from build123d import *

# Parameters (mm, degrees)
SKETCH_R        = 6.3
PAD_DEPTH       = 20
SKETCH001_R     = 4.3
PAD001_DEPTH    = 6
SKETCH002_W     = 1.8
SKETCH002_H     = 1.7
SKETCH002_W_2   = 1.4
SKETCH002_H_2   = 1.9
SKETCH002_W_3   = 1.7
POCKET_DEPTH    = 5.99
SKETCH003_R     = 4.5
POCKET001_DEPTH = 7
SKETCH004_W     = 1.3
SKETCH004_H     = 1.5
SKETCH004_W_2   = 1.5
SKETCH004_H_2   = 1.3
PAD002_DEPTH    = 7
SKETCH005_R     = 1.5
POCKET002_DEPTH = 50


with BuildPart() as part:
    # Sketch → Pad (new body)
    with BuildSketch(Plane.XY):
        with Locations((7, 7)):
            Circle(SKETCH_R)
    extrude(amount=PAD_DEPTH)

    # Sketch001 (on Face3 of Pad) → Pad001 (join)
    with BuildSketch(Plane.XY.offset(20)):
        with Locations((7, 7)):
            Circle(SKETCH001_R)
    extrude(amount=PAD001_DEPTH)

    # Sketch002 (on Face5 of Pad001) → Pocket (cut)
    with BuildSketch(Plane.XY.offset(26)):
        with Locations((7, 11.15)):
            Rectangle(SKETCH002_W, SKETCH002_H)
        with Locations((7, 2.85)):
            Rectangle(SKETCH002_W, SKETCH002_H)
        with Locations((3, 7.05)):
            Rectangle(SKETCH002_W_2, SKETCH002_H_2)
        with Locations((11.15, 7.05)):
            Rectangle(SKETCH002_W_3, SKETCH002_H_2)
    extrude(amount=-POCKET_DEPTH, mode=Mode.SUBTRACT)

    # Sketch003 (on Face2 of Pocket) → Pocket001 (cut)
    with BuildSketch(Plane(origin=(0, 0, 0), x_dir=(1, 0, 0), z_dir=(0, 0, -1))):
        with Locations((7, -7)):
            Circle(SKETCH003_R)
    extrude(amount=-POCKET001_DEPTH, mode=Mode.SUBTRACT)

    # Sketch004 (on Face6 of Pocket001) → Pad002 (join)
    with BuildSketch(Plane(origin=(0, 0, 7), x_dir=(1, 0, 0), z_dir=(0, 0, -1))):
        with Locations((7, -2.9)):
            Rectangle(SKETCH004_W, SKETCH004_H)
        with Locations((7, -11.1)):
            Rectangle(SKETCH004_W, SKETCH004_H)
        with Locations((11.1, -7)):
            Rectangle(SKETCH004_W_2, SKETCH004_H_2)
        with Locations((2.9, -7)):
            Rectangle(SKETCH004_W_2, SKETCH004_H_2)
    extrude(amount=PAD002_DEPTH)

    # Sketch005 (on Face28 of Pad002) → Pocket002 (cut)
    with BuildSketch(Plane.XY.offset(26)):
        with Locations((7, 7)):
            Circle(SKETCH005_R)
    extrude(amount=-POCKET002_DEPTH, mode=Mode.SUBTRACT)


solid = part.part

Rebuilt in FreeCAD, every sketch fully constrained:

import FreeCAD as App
import Part
import Sketcher

V = App.Vector
Q = App.Units.Quantity


def add_polygon(sketch, points):
    """Adds a closed chain of lines whose ends are joined by coincident constraints."""
    first, n = sketch.GeometryCount, len(points)
    for a, b in zip(points, points[1:] + points[:1]):
        sketch.addGeometry(Part.LineSegment(App.Vector(*a, 0), App.Vector(*b, 0)), False)
    for i in range(n):
        sketch.addConstraint(Sketcher.Constraint("Coincident", first + i, 2, first + (i + 1) % n, 1))

doc = App.newDocument("Part")
body = doc.addObject("PartDesign::Body", "Body")

sketch1 = body.newObject("Sketcher::SketchObject", "Sketch")
sketch1.AttachmentSupport = (doc.getObject("XY_Plane"), [""])
sketch1.MapMode = "FlatFace"
sketch1.addGeometry(Part.Circle(V(7, 7, 0), V(0, 0, 1), 6), False)
sketch1.addConstraint(Sketcher.Constraint("Diameter", 0, Q("12.6 mm")))
sketch1.addConstraint(Sketcher.Constraint("DistanceX", -1, 1, 0, 3, Q("7 mm")))
sketch1.addConstraint(Sketcher.Constraint("DistanceY", -1, 1, 0, 3, Q("7 mm")))
pad1 = body.newObject("PartDesign::Pad", "Pad")
pad1.Profile = sketch1
pad1.Length = 20

sketch2 = body.newObject("Sketcher::SketchObject", "Sketch001")
sketch2.AttachmentSupport = (doc.getObject("XY_Plane"), [""])
sketch2.MapMode = "FlatFace"
sketch2.AttachmentOffset = App.Placement(V(0, 0, 20), App.Rotation())
sketch2.addGeometry(Part.Circle(V(7, 7, 0), V(0, 0, 1), 4.3), False)
sketch2.addConstraint(Sketcher.Constraint("Diameter", 0, Q("8.6 mm")))
sketch2.addConstraint(Sketcher.Constraint("DistanceX", -1, 1, 0, 3, Q("7 mm")))
sketch2.addConstraint(Sketcher.Constraint("DistanceY", -1, 1, 0, 3, Q("7 mm")))
pad2 = body.newObject("PartDesign::Pad", "Pad001")
pad2.Profile = sketch2
pad2.Length = 6

sketch3 = body.newObject("Sketcher::SketchObject", "Sketch002")
sketch3.AttachmentSupport = (doc.getObject("XY_Plane"), [""])
sketch3.MapMode = "FlatFace"
sketch3.AttachmentOffset = App.Placement(V(0, 0, 26), App.Rotation())
add_polygon(sketch3, [(6.1, 12), (6.1, 10.3), (7.9, 10.3), (7.9, 12)])
add_polygon(sketch3, [(6.1, 3.7), (6.1, 2), (7.9, 2), (7.9, 3.7)])
add_polygon(sketch3, [(2.3, 8), (2.3, 6.1), (3.7, 6.1), (3.7, 8)])
add_polygon(sketch3, [(10.3, 8), (10.3, 6.1), (12, 6.1), (12, 8)])
sketch3.addConstraint(Sketcher.Constraint("Vertical", 0))
sketch3.addConstraint(Sketcher.Constraint("Horizontal", 1))
sketch3.addConstraint(Sketcher.Constraint("Vertical", 2))
sketch3.addConstraint(Sketcher.Constraint("Horizontal", 3))
sketch3.addConstraint(Sketcher.Constraint("Vertical", 4))
sketch3.addConstraint(Sketcher.Constraint("Horizontal", 5))
sketch3.addConstraint(Sketcher.Constraint("Vertical", 6))
sketch3.addConstraint(Sketcher.Constraint("Horizontal", 7))
sketch3.addConstraint(Sketcher.Constraint("Vertical", 8))
sketch3.addConstraint(Sketcher.Constraint("Horizontal", 9))
sketch3.addConstraint(Sketcher.Constraint("Vertical", 10))
sketch3.addConstraint(Sketcher.Constraint("Horizontal", 11))
sketch3.addConstraint(Sketcher.Constraint("Vertical", 12))
sketch3.addConstraint(Sketcher.Constraint("Horizontal", 13))
sketch3.addConstraint(Sketcher.Constraint("Vertical", 14))
sketch3.addConstraint(Sketcher.Constraint("Horizontal", 15))
sketch3.addConstraint(Sketcher.Constraint("Horizontal", 9, 2, 12, 2))
sketch3.addConstraint(Sketcher.Constraint("Horizontal", 11, 2, 14, 2))
sketch3.addConstraint(Sketcher.Constraint("Vertical", 3, 2, 4, 2))
sketch3.addConstraint(Sketcher.Constraint("Vertical", 2, 2, 5, 2))
sketch3.addConstraint(Sketcher.Constraint("Equal", 15, 0))
sketch3.addConstraint(Sketcher.Constraint("Equal", 2, 4))
sketch3.addConstraint(Sketcher.Constraint("DistanceX", 1, 1, 1, 2, Q("1.8 mm")))
sketch3.addConstraint(Sketcher.Constraint("DistanceX", 9, 1, 9, 2, Q("1.4 mm")))
sketch3.addConstraint(Sketcher.Constraint("DistanceX", 13, 1, 13, 2, Q("1.7 mm")))
sketch3.addConstraint(Sketcher.Constraint("DistanceY", 8, 2, 8, 1, Q("1.9 mm")))
sketch3.addConstraint(Sketcher.Constraint("DistanceY", -1, 1, 2, 2, Q("12 mm")))
sketch3.addConstraint(Sketcher.Constraint("DistanceY", -1, 1, 4, 2, Q("2 mm")))
sketch3.addConstraint(Sketcher.Constraint("DistanceY", -1, 1, 10, 2, Q("8 mm")))
sketch3.addConstraint(Sketcher.Constraint("DistanceX", -1, 1, 13, 2, Q("12 mm")))
sketch3.addConstraint(Sketcher.Constraint("DistanceX", -1, 1, 0, 2, Q("6.1 mm")))
sketch3.addConstraint(Sketcher.Constraint("DistanceX", -1, 1, 8, 2, Q("2.3 mm")))
pocket1 = body.newObject("PartDesign::Pocket", "Pocket")
pocket1.Profile = sketch3
pocket1.Length = 5.99

sketch4 = body.newObject("Sketcher::SketchObject", "Sketch003")
sketch4.AttachmentSupport = (doc.getObject("XY_Plane"), [""])
sketch4.MapMode = "FlatFace"
sketch4.addGeometry(Part.Circle(V(7, 7, 0), V(0, 0, 1), 4.5), False)
sketch4.addConstraint(Sketcher.Constraint("Diameter", 0, Q("9 mm")))
sketch4.addConstraint(Sketcher.Constraint("DistanceX", -1, 1, 0, 3, Q("7 mm")))
sketch4.addConstraint(Sketcher.Constraint("DistanceY", -1, 1, 0, 3, Q("7 mm")))
pocket2 = body.newObject("PartDesign::Pocket", "Pocket001")
pocket2.Profile = sketch4
pocket2.Length = 7
pocket2.Reversed = True

sketch5 = body.newObject("Sketcher::SketchObject", "Sketch004")
sketch5.AttachmentSupport = (doc.getObject("XY_Plane"), [""])
sketch5.MapMode = "FlatFace"
sketch5.AttachmentOffset = App.Placement(V(0, 0, 7), App.Rotation())
add_polygon(sketch5, [(6.3, 2.1), (6.3, 3.6), (7.7, 3.6), (7.7, 2.1)])
add_polygon(sketch5, [(6.3, 10.3), (6.3, 11.8), (7.7, 11.8), (7.7, 10.3)])
add_polygon(sketch5, [(10.3, 6.3), (10.3, 7.7), (11.8, 7.7), (11.8, 6.3)])
add_polygon(sketch5, [(2.1, 6.3), (2.1, 7.7), (3.6, 7.7), (3.6, 6.3)])
sketch5.addConstraint(Sketcher.Constraint("Vertical", 0))
sketch5.addConstraint(Sketcher.Constraint("Horizontal", 1))
sketch5.addConstraint(Sketcher.Constraint("Vertical", 2))
sketch5.addConstraint(Sketcher.Constraint("Horizontal", 3))
sketch5.addConstraint(Sketcher.Constraint("Vertical", 4))
sketch5.addConstraint(Sketcher.Constraint("Horizontal", 5))
sketch5.addConstraint(Sketcher.Constraint("Vertical", 6))
sketch5.addConstraint(Sketcher.Constraint("Horizontal", 7))
sketch5.addConstraint(Sketcher.Constraint("Vertical", 8))
sketch5.addConstraint(Sketcher.Constraint("Horizontal", 9))
sketch5.addConstraint(Sketcher.Constraint("Vertical", 10))
sketch5.addConstraint(Sketcher.Constraint("Horizontal", 11))
sketch5.addConstraint(Sketcher.Constraint("Vertical", 12))
sketch5.addConstraint(Sketcher.Constraint("Horizontal", 13))
sketch5.addConstraint(Sketcher.Constraint("Vertical", 14))
sketch5.addConstraint(Sketcher.Constraint("Horizontal", 15))
sketch5.addConstraint(Sketcher.Constraint("Horizontal", 9, 2, 12, 2))
sketch5.addConstraint(Sketcher.Constraint("Horizontal", 11, 2, 14, 2))
sketch5.addConstraint(Sketcher.Constraint("Vertical", 3, 2, 4, 2))
sketch5.addConstraint(Sketcher.Constraint("Vertical", 2, 2, 5, 2))
sketch5.addConstraint(Sketcher.Constraint("Equal", 11, 13))
sketch5.addConstraint(Sketcher.Constraint("Equal", 15, 0))
sketch5.addConstraint(Sketcher.Constraint("Equal", 2, 4))
sketch5.addConstraint(Sketcher.Constraint("Equal", 7, 8))
sketch5.addConstraint(Sketcher.Constraint("DistanceX", 1, 1, 1, 2, Q("1.3 mm")))
sketch5.addConstraint(Sketcher.Constraint("DistanceX", 9, 1, 9, 2, Q("1.5 mm")))
sketch5.addConstraint(Sketcher.Constraint("DistanceY", 1, 2, 8, 2, Q("4 mm")))
sketch5.addConstraint(Sketcher.Constraint("DistanceX", 7, 2, 8, 2, Q("4 mm")))
sketch5.addConstraint(Sketcher.Constraint("DistanceY", 10, 2, 6, 2, Q("4 mm")))
sketch5.addConstraint(Sketcher.Constraint("DistanceX", 13, 2, 6, 2, Q("4 mm")))
sketch5.addConstraint(Sketcher.Constraint("DistanceX", -1, 1, 0, 2, Q("6.35 mm")))
sketch5.addConstraint(Sketcher.Constraint("DistanceY", -1, 1, 0, 2, Q("3.65 mm")))
pad3 = body.newObject("PartDesign::Pad", "Pad002")
pad3.Profile = sketch5
pad3.Length = 7
pad3.Reversed = True

sketch6 = body.newObject("Sketcher::SketchObject", "Sketch005")
sketch6.AttachmentSupport = (doc.getObject("XY_Plane"), [""])
sketch6.MapMode = "FlatFace"
sketch6.AttachmentOffset = App.Placement(V(0, 0, 26), App.Rotation())
sketch6.addGeometry(Part.Circle(V(7, 7, 0), V(0, 0, 1), 1.5), False)
sketch6.addConstraint(Sketcher.Constraint("Diameter", 0, Q("3 mm")))
sketch6.addConstraint(Sketcher.Constraint("DistanceX", -1, 1, 0, 3, Q("7 mm")))
sketch6.addConstraint(Sketcher.Constraint("DistanceY", -1, 1, 0, 3, Q("7 mm")))
pocket3 = body.newObject("PartDesign::Pocket", "Pocket002")
pocket3.Profile = sketch6
pocket3.Length = 50

doc.recompute()
